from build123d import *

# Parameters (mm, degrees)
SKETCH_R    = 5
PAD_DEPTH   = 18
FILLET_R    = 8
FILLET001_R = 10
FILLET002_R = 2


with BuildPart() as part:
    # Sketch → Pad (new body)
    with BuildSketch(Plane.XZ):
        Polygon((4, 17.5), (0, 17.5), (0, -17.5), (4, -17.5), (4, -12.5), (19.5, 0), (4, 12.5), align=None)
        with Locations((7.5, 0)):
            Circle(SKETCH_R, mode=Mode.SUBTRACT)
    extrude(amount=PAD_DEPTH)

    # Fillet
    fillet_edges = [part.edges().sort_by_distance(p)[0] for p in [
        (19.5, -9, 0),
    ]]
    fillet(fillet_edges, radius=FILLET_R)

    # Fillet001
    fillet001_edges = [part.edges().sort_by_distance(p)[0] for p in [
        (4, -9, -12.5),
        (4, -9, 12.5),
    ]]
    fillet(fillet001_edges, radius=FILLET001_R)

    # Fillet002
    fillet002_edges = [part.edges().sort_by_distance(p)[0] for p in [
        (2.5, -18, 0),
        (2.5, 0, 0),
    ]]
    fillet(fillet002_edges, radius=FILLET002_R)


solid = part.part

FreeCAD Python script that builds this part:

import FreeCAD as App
import Part
import Sketcher
from FreeCAD import Vector


def edges_at(feature, points):
    """Names of the edges that pass closest to the given points."""
    edges = feature.Shape.Edges
    near = lambda p: min(range(len(edges)), key=lambda i: edges[i].distToShape(Part.Vertex(*p))[0])
    return sorted({f"Edge{near(p) + 1}" for p in points})


def add_polygon(sketch, points):
    """Adds a closed chain of lines whose ends are joined by coincident constraints."""
    first, n = sketch.GeometryCount, len(points)
    for a, b in zip(points, points[1:] + points[:1]):
        sketch.addGeometry(Part.LineSegment(App.Vector(*a, 0), App.Vector(*b, 0)), False)
    for i in range(n):
        sketch.addConstraint(Sketcher.Constraint("Coincident", first + i, 2, first + (i + 1) % n, 1))

doc = App.newDocument("Part")
body = doc.addObject("PartDesign::Body", "Body")

# Sketch on XZ plane
sketch1 = body.newObject("Sketcher::SketchObject", "Sketch")
sketch1.AttachmentSupport = (doc.getObject("XZ_Plane"), [""])
sketch1.MapMode = "FlatFace"
add_polygon(sketch1, [(4, 17.5), (0, 17.5), (0, -17.5), (4, -17.5), (4, -12.5), (19.5, 0), (4, 12.5)])  # lines 0-6
sketch1.addGeometry(Part.Circle(Vector(7.5, 0, 0), Vector(0, 0, 1), 5), False)  # 7
sketch1.addConstraint([
    Sketcher.Constraint("Horizontal", 0),
    Sketcher.Constraint("Vertical", 1),
    Sketcher.Constraint("Horizontal", 2),
    Sketcher.Constraint("Vertical", 3),
    Sketcher.Constraint("Vertical", 6),
    Sketcher.Constraint("Symmetric", 0, 2, 1, 2, -1, 1),
    Sketcher.Constraint("Symmetric", 3, 2, 5, 2, -1),
    Sketcher.Constraint("PointOnObject", 7, 3, -1),
    Sketcher.Constraint("PointOnObject", 4, 2, -1),
    Sketcher.Constraint("Diameter", 7, 10.0),
    Sketcher.Constraint("DistanceX", 0, 2, 0, 1, 4.0),
    Sketcher.Constraint("DistanceY", 1, 2, 1, 1, 35.0),
    Sketcher.Constraint("DistanceY", 3, 1, 3, 2, 5.0),
    Sketcher.Constraint("DistanceX", 7, 3, 4, 2, 12.0),
    Sketcher.Constraint("DistanceX", -1, 1, 7, 3, 7.5),
])
pad1 = body.newObject("PartDesign::Pad", "Pad")
pad1.Profile = sketch1
pad1.Length = 18
doc.recompute()

fillet = body.newObject("PartDesign::Fillet", "Fillet")
fillet.Base = (pad1, edges_at(pad1, [(19.5, -9, 0)]))
fillet.Radius = 8
doc.recompute()

fillet2 = body.newObject("PartDesign::Fillet", "Fillet001")
fillet2.Base = (fillet, edges_at(fillet, [(4, -9, -12.5), (4, -9, 12.5)]))
fillet2.Radius = 10
doc.recompute()

fillet3 = body.newObject("PartDesign::Fillet", "Fillet002")
fillet3.Base = (fillet2, edges_at(fillet2, [(2.5, -18, 0), (2.5, 0, 0)]))
fillet3.Radius = 2

doc.recompute()
